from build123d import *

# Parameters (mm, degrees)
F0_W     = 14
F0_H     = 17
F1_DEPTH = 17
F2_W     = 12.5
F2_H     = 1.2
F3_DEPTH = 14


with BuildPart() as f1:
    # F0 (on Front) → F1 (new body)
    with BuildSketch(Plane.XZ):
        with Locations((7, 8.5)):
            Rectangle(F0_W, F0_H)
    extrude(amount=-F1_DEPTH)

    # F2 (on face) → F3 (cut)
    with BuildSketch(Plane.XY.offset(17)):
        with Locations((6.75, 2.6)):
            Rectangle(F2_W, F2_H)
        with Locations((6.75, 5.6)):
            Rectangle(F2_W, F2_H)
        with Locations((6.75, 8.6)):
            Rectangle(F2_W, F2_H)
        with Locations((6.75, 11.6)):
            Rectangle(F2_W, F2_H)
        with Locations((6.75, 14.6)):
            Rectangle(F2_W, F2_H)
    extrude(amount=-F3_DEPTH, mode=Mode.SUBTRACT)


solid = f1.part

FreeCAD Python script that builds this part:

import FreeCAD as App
import Part
import Sketcher

V = App.Vector


def add_polygon(sketch, points):
    """Adds a closed chain of lines whose ends are joined by coincident constraints."""
    first, n = sketch.GeometryCount, len(points)
    for a, b in zip(points, points[1:] + points[:1]):
        sketch.addGeometry(Part.LineSegment(App.Vector(*a, 0), App.Vector(*b, 0)), False)
    for i in range(n):
        sketch.addConstraint(Sketcher.Constraint("Coincident", first + i, 2, first + (i + 1) % n, 1))

doc = App.newDocument("Part")
body = doc.addObject("PartDesign::Body", "Body")

sketch1 = body.newObject("Sketcher::SketchObject", "Sketch")
sketch1.AttachmentSupport = (doc.getObject("XZ_Plane"), [""])
sketch1.MapMode = "FlatFace"
add_polygon(sketch1, [(0, 17), (0, 0), (14, 0), (14, 17)])
sketch1.addConstraint([
    Sketcher.Constraint("Vertical", 0),
    Sketcher.Constraint("Horizontal", 1),
    Sketcher.Constraint("Vertical", 2),
    Sketcher.Constraint("Horizontal", 3),
    Sketcher.Constraint("Coincident", 0, 2, -1, 1),
    Sketcher.Constraint("DistanceX", 1, 1, 1, 2, 14.0),
    Sketcher.Constraint("DistanceY", 0, 2, 0, 1, 17.0),
])
pad1 = body.newObject("PartDesign::Pad", "Pad")
pad1.Profile = sketch1
pad1.Length = 17
pad1.Reversed = True

sketch2 = body.newObject("Sketcher::SketchObject", "Sketch001")
sketch2.AttachmentSupport = (doc.getObject("XY_Plane"), [""])
sketch2.MapMode = "FlatFace"
sketch2.AttachmentOffset = App.Placement(V(0, 0, 17), App.Rotation())
add_polygon(sketch2, [(0.5, 3.2), (0.5, 2), (13, 2), (13, 3.2)])
add_polygon(sketch2, [(0.5, 6.2), (0.5, 5), (13, 5), (13, 6.2)])
add_polygon(sketch2, [(0.5, 9.2), (0.5, 8), (13, 8), (13, 9.2)])
add_polygon(sketch2, [(0.5, 12.2), (0.5, 11), (13, 11), (13, 12.2)])
add_polygon(sketch2, [(0.5, 15.2), (0.5, 14), (13, 14), (13, 15.2)])
sketch2.addConstraint([
    Sketcher.Constraint("Vertical", 0),
    Sketcher.Constraint("Horizontal", 1),
    Sketcher.Constraint("Vertical", 2),
    Sketcher.Constraint("Horizontal", 3),
    Sketcher.Constraint("Vertical", 4),
    Sketcher.Constraint("Horizontal", 5),
    Sketcher.Constraint("Vertical", 6),
    Sketcher.Constraint("Horizontal", 7),
    Sketcher.Constraint("Vertical", 8),
    Sketcher.Constraint("Horizontal", 9),
    Sketcher.Constraint("Vertical", 10),
    Sketcher.Constraint("Horizontal", 11),
    Sketcher.Constraint("Vertical", 12),
    Sketcher.Constraint("Horizontal", 13),
    Sketcher.Constraint("Vertical", 14),
    Sketcher.Constraint("Horizontal", 15),
    Sketcher.Constraint("Vertical", 16),
    Sketcher.Constraint("Horizontal", 17),
    Sketcher.Constraint("Vertical", 18),
    Sketcher.Constraint("Horizontal", 19),
    Sketcher.Constraint("Vertical", 3, 2, 4, 2),
    Sketcher.Constraint("Vertical", 2, 2, 5, 2),
    Sketcher.Constraint("Vertical", 7, 2, 8, 2),
    Sketcher.Constraint("Vertical", 6, 2, 9, 2),
    Sketcher.Constraint("Vertical", 11, 2, 12, 2),
    Sketcher.Constraint("Vertical", 10, 2, 13, 2),
    Sketcher.Constraint("Vertical", 15, 2, 16, 2),
    Sketcher.Constraint("Vertical", 14, 2, 17, 2),
    Sketcher.Constraint("Equal", 2, 4),
    Sketcher.Constraint("Equal", 6, 8),
    Sketcher.Constraint("Equal", 10, 12),
    Sketcher.Constraint("Equal", 14, 16),
    Sketcher.Constraint("DistanceX", 1, 1, 1, 2, 12.5),
    Sketcher.Constraint("DistanceY", 0, 2, 0, 1, 1.2),
    Sketcher.Constraint("DistanceY", -1, 1, 0, 2, 2.0),
    Sketcher.Constraint("DistanceX", -1, 1, 1, 2, 13.0),
    Sketcher.Constraint("DistanceY", -1, 1, 4, 2, 5.0),
    Sketcher.Constraint("DistanceY", -1, 1, 8, 2, 8.0),
    Sketcher.Constraint("DistanceY", -1, 1, 12, 2, 11.0),
    Sketcher.Constraint("DistanceY", -1, 1, 16, 2, 14.0),
])
pocket1 = body.newObject("PartDesign::Pocket", "Pocket")
pocket1.Profile = sketch2
pocket1.Length = 14

doc.recompute()
